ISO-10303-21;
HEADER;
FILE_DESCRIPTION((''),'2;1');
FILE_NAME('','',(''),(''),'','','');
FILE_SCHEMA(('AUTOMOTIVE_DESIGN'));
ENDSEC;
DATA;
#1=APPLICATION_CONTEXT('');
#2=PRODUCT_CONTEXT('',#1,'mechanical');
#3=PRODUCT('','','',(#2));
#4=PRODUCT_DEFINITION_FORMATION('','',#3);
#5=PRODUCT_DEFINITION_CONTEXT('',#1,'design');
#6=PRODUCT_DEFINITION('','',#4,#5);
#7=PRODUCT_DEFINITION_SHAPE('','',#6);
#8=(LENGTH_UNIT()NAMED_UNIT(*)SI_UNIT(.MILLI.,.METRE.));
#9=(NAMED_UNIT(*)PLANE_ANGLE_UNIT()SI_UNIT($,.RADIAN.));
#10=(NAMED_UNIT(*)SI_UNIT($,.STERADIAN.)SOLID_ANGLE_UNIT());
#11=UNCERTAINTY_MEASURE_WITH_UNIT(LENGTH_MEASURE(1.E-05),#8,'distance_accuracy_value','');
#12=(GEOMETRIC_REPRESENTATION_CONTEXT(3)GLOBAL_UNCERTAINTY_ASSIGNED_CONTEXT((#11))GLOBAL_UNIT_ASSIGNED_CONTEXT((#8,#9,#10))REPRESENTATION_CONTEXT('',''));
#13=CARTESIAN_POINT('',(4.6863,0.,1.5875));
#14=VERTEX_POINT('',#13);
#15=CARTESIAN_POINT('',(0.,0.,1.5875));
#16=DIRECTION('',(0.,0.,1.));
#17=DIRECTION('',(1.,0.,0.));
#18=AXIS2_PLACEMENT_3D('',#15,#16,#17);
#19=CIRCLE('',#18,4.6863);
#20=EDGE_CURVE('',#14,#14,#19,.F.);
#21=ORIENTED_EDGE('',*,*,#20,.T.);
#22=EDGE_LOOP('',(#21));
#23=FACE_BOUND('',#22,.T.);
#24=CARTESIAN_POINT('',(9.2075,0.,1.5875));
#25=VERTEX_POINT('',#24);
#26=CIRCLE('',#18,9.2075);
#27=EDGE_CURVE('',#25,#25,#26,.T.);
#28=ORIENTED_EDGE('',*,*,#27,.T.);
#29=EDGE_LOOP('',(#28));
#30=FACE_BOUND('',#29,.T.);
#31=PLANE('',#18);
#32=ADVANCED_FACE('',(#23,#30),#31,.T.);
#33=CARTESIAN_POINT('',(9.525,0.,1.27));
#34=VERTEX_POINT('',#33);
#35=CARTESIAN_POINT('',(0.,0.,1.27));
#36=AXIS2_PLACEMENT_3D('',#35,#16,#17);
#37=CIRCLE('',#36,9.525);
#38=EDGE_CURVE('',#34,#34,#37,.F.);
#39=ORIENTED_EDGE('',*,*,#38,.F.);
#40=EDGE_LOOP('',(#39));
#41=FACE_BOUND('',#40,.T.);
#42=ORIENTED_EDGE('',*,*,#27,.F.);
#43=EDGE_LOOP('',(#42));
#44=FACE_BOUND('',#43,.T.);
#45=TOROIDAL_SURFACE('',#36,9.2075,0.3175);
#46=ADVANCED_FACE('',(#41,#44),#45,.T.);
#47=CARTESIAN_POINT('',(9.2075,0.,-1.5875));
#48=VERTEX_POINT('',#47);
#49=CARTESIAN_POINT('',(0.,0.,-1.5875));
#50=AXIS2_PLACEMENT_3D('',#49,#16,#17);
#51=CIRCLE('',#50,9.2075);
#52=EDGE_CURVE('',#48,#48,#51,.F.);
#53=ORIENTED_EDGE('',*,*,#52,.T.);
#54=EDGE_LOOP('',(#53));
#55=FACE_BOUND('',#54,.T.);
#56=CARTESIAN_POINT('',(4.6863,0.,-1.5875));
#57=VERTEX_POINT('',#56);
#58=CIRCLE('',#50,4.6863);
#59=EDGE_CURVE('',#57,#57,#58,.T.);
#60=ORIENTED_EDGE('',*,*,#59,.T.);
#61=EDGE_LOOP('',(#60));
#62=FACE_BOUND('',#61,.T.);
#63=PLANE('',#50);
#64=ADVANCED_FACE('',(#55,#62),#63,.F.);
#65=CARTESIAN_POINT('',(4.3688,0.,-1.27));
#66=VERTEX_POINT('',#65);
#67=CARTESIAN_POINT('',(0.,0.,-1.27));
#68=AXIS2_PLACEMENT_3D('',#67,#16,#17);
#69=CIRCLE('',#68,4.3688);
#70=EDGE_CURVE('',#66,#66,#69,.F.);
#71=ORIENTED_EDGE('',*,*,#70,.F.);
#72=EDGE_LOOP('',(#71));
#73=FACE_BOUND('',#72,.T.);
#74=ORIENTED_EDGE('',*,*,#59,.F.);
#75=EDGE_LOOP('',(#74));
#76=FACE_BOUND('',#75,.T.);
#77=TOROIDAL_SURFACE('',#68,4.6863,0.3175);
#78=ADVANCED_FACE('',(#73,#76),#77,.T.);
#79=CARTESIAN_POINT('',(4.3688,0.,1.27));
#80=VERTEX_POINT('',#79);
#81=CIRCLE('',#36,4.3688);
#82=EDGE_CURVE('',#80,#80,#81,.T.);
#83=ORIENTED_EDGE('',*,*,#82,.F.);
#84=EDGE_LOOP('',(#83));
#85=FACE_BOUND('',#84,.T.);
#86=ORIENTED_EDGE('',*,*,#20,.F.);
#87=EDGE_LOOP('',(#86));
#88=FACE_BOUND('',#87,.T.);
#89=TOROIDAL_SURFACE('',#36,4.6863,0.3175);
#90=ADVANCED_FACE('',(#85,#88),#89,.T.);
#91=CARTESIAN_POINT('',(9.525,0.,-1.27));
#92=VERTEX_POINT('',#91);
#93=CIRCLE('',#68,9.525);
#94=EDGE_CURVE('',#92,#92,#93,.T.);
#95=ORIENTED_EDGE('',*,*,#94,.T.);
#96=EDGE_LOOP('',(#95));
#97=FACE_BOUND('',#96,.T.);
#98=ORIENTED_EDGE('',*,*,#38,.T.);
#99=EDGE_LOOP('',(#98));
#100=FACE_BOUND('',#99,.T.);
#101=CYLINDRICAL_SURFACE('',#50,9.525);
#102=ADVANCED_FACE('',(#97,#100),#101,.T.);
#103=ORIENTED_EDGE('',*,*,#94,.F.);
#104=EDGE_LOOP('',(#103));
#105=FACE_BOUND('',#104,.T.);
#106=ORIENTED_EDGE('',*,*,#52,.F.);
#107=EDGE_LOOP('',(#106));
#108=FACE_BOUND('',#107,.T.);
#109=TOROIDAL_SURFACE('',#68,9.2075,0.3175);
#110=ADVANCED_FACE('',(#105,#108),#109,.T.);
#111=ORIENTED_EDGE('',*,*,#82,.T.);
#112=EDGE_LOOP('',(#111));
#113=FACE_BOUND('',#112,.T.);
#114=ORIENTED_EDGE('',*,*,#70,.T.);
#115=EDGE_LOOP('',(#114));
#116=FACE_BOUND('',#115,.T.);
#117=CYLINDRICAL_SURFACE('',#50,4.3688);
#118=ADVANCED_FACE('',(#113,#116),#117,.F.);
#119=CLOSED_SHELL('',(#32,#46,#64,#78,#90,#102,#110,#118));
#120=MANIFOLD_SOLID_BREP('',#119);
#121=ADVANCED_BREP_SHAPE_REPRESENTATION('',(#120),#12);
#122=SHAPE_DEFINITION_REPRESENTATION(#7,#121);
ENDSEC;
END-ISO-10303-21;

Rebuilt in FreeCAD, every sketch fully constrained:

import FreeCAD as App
import Part
import Sketcher

V = App.Vector
Q = App.Units.Quantity


def edges_at(feature, points):
    """Names of the edges that pass closest to the given points."""
    edges = feature.Shape.Edges
    near = lambda p: min(range(len(edges)), key=lambda i: edges[i].distToShape(Part.Vertex(*p))[0])
    return sorted({f"Edge{near(p) + 1}" for p in points})

doc = App.newDocument("Part")
body = doc.addObject("PartDesign::Body", "Body")

sketch1 = body.newObject("Sketcher::SketchObject", "Sketch")
sketch1.AttachmentSupport = (doc.getObject("XY_Plane"), [""])
sketch1.MapMode = "FlatFace"
sketch1.AttachmentOffset = App.Placement(V(0, 0, 0.0625 * 25.4), App.Rotation())
sketch1.addGeometry([
    Part.Circle(V(0, 0, 0), V(0, 0, 1), 9.5),
    Part.Circle(V(0, 0, 0), V(0, 0, 1), 4.4),
], False)
sketch1.addConstraint([
    Sketcher.Constraint("Coincident", 0, 3, -1, 1),
    Sketcher.Constraint("Coincident", 1, 3, -1, 1),
    Sketcher.Constraint("Diameter", 0, Q("0.75 in")),
    Sketcher.Constraint("Diameter", 1, Q("0.344 in")),
])
pad1 = body.newObject("PartDesign::Pad", "Pad")
pad1.Profile = sketch1
pad1.Length = Q("0.125 in")
pad1.Reversed = True
doc.recompute()

fillet = body.newObject("PartDesign::Fillet", "Fillet")
fillet.Base = (pad1, edges_at(pad1, [
    (-9.525, 0, 1.587),
    (-9.525, 0, -1.587),
    (-4.369, 0, -1.587),
    (-4.369, 0, 1.587),
]))
fillet.Radius = Q("0.0125 in")

doc.recompute()
